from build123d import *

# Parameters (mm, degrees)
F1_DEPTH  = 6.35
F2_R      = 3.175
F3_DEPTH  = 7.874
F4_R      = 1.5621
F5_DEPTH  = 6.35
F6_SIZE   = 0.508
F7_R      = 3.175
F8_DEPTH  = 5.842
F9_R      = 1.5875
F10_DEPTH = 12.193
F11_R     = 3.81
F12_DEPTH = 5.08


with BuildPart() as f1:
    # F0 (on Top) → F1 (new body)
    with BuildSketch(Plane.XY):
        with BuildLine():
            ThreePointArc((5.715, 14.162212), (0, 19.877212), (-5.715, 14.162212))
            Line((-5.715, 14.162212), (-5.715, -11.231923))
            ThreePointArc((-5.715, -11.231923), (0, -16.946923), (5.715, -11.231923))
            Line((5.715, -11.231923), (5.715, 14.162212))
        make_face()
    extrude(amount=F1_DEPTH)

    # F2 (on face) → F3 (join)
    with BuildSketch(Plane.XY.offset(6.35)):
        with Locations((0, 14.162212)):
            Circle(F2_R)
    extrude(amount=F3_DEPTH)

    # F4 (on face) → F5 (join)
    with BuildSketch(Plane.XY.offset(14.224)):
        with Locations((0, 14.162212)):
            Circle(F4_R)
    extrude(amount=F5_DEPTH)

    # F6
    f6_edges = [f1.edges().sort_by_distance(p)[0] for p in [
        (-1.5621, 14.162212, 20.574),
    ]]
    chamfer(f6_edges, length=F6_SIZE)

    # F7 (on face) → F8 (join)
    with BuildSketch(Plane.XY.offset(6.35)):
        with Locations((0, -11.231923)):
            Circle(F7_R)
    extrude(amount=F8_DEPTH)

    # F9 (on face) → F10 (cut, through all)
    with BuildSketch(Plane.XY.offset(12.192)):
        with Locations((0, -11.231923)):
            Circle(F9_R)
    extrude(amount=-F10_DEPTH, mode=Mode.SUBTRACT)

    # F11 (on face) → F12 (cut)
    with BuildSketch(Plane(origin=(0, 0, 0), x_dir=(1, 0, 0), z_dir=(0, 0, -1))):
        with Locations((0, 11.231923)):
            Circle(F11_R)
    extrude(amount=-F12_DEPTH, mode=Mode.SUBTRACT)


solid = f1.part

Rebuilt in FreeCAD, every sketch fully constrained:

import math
import FreeCAD as App
import Part
import Sketcher
Q = App.Units.Quantity


def edges_at(feature, points):
    """Names of the edges that pass closest to the given points."""
    edges = feature.Shape.Edges
    near = lambda p: min(range(len(edges)), key=lambda i: edges[i].distToShape(Part.Vertex(*p))[0])
    return sorted({f"Edge{near(p) + 1}" for p in points})

doc = App.newDocument("Part")
body = doc.addObject("PartDesign::Body", "Body")

# Sketch on XY plane
sketch1 = body.newObject("Sketcher::SketchObject", "Sketch")
sketch1.AttachmentSupport = (doc.getObject("XY_Plane"), [""])
sketch1.MapMode = "FlatFace"
sketch1.addGeometry(Part.ArcOfCircle(Part.Circle(App.Vector(0, 14, 0), App.Vector(0, 0, 1), 6), math.radians(0), math.radians(180)), False)
sketch1.addGeometry(Part.LineSegment(App.Vector(-6, 14, 0), App.Vector(-6, -11, 0)), False)
sketch1.addGeometry(Part.ArcOfCircle(Part.Circle(App.Vector(0, -11, 0), App.Vector(0, 0, 1), 6), math.radians(180), math.radians(360)), False)
sketch1.addGeometry(Part.LineSegment(App.Vector(6, -11, 0), App.Vector(6, 14, 0)), False)
sketch1.addConstraint(Sketcher.Constraint("Tangent", 0, 2, 1, 1))
sketch1.addConstraint(Sketcher.Constraint("Tangent", 1, 2, 2, 1))
sketch1.addConstraint(Sketcher.Constraint("Tangent", 2, 2, 3, 1))
sketch1.addConstraint(Sketcher.Constraint("Tangent", 3, 2, 0, 1))
sketch1.addConstraint(Sketcher.Constraint("Vertical", 1))
sketch1.addConstraint(Sketcher.Constraint("Vertical", 3))
sketch1.addConstraint(Sketcher.Constraint("PointOnObject", 0, 3, -2))
sketch1.addConstraint(Sketcher.Constraint("Radius", 0, Q("0.225 in")))
sketch1.addConstraint(Sketcher.Constraint("DistanceY", 1, 2, 1, 1, Q("25.394135 mm")))
sketch1.addConstraint(Sketcher.Constraint("DistanceY", -1, 1, 0, 3, Q("14.162212 mm")))
pad1 = body.newObject("PartDesign::Pad", "Pad")
pad1.Profile = sketch1
pad1.Length = Q("0.25 in")

# Sketch on XY plane
sketch2 = body.newObject("Sketcher::SketchObject", "Sketch001")
sketch2.AttachmentSupport = (doc.getObject("XY_Plane"), [""])
sketch2.MapMode = "FlatFace"
sketch2.AttachmentOffset = App.Placement(App.Vector(0, 0, 0.25 * 25.4), App.Rotation())
sketch2.addGeometry(Part.Circle(App.Vector(0, 14.2, 0), App.Vector(0, 0, 1), 3.2), False)
sketch2.addConstraint(Sketcher.Constraint("PointOnObject", 0, 3, -2))
sketch2.addConstraint(Sketcher.Constraint("Diameter", 0, Q("0.25 in")))
sketch2.addConstraint(Sketcher.Constraint("DistanceY", -1, 1, 0, 3, Q("14.162212 mm")))
pad2 = body.newObject("PartDesign::Pad", "Pad001")
pad2.Profile = sketch2
pad2.Length = Q("0.31 in")

# Sketch on XY plane
sketch3 = body.newObject("Sketcher::SketchObject", "Sketch002")
sketch3.AttachmentSupport = (doc.getObject("XY_Plane"), [""])
sketch3.MapMode = "FlatFace"
sketch3.AttachmentOffset = App.Placement(App.Vector(0, 0, 0.56 * 25.4), App.Rotation())
sketch3.addGeometry(Part.Circle(App.Vector(0, 14.2, 0), App.Vector(0, 0, 1), 1.6), False)
sketch3.addConstraint(Sketcher.Constraint("PointOnObject", 0, 3, -2))
sketch3.addConstraint(Sketcher.Constraint("Diameter", 0, Q("0.123 in")))
sketch3.addConstraint(Sketcher.Constraint("DistanceY", -1, 1, 0, 3, Q("14.162212 mm")))
pad3 = body.newObject("PartDesign::Pad", "Pad002")
pad3.Profile = sketch3
pad3.Length = Q("0.25 in")
doc.recompute()

chamfer = body.newObject("PartDesign::Chamfer", "Chamfer")
chamfer.Base = (pad3, edges_at(pad3, [(-1.562, 14.162, 20.574)]))
chamfer.Size = Q("0.02 in")

# Sketch on XY plane
sketch4 = body.newObject("Sketcher::SketchObject", "Sketch003")
sketch4.AttachmentSupport = (doc.getObject("XY_Plane"), [""])
sketch4.MapMode = "FlatFace"
sketch4.AttachmentOffset = App.Placement(App.Vector(0, 0, 0.25 * 25.4), App.Rotation())
sketch4.addGeometry(Part.Circle(App.Vector(0, -11.2, 0), App.Vector(0, 0, 1), 3.2), False)
sketch4.addConstraint(Sketcher.Constraint("PointOnObject", 0, 3, -2))
sketch4.addConstraint(Sketcher.Constraint("Diameter", 0, Q("0.25 in")))
sketch4.addConstraint(Sketcher.Constraint("DistanceY", 0, 3, -1, 1, Q("11.231923 mm")))
pad4 = body.newObject("PartDesign::Pad", "Pad003")
pad4.Profile = sketch4
pad4.Length = Q("0.23 in")

# Sketch on XY plane
sketch5 = body.newObject("Sketcher::SketchObject", "Sketch004")
sketch5.AttachmentSupport = (doc.getObject("XY_Plane"), [""])
sketch5.MapMode = "FlatFace"
sketch5.AttachmentOffset = App.Placement(App.Vector(0, 0, 0.48 * 25.4), App.Rotation())
sketch5.addGeometry(Part.Circle(App.Vector(0, -11.2, 0), App.Vector(0, 0, 1), 1.6), False)
sketch5.addConstraint(Sketcher.Constraint("PointOnObject", 0, 3, -2))
sketch5.addConstraint(Sketcher.Constraint("Diameter", 0, Q("0.125 in")))
sketch5.addConstraint(Sketcher.Constraint("DistanceY", 0, 3, -1, 1, Q("11.231923 mm")))
pocket1 = body.newObject("PartDesign::Pocket", "Pocket")
pocket1.Profile = sketch5
pocket1.Type = "ThroughAll"

# Sketch on XY plane
sketch6 = body.newObject("Sketcher::SketchObject", "Sketch005")
sketch6.AttachmentSupport = (doc.getObject("XY_Plane"), [""])
sketch6.MapMode = "FlatFace"
sketch6.addGeometry(Part.Circle(App.Vector(0, -11.2, 0), App.Vector(0, 0, 1), 3.8), False)
sketch6.addConstraint(Sketcher.Constraint("PointOnObject", 0, 3, -2))
sketch6.addConstraint(Sketcher.Constraint("Diameter", 0, Q("0.3 in")))
sketch6.addConstraint(Sketcher.Constraint("DistanceY", 0, 3, -1, 1, Q("11.231923 mm")))
pocket2 = body.newObject("PartDesign::Pocket", "Pocket001")
pocket2.Profile = sketch6
pocket2.Length = Q("0.2 in")
pocket2.Reversed = True

doc.recompute()
